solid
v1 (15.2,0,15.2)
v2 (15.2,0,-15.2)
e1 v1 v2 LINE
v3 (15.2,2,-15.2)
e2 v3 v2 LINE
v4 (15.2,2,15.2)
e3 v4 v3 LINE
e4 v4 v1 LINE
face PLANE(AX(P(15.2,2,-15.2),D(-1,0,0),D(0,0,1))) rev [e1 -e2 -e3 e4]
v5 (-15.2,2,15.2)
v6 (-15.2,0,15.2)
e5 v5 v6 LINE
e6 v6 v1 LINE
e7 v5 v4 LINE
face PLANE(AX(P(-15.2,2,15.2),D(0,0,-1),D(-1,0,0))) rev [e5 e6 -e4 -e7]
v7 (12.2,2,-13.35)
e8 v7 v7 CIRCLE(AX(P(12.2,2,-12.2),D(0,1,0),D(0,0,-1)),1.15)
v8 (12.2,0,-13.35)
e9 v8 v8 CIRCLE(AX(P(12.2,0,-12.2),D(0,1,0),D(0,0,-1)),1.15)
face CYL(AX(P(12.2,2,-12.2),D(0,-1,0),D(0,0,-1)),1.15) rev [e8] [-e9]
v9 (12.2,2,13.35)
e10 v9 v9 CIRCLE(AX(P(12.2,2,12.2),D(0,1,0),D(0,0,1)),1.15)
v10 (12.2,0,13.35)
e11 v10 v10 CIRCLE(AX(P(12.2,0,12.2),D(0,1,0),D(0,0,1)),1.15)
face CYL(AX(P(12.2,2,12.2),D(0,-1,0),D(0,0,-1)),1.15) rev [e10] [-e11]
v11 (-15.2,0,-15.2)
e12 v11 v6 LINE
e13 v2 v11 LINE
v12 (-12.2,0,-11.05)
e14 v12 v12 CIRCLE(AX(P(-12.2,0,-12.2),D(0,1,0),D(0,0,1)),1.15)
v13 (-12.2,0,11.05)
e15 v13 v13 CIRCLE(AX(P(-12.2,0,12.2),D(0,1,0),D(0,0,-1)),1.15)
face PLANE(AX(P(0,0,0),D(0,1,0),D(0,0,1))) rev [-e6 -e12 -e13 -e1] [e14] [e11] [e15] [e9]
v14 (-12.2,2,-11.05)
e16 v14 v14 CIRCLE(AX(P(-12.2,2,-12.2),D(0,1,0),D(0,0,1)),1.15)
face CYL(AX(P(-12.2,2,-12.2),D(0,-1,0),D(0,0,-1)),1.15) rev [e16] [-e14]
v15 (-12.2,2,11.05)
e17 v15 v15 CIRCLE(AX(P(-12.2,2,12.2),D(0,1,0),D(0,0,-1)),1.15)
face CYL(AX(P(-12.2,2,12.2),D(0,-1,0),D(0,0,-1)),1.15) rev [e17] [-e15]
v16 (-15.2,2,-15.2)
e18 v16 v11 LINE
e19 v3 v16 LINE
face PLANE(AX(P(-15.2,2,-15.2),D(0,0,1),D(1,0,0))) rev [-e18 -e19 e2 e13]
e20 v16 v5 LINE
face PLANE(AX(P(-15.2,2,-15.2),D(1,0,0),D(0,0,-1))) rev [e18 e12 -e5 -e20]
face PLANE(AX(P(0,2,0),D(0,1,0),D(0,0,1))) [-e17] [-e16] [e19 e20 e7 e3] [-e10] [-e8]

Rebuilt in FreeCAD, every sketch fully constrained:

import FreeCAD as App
import Part
import Sketcher


def add_polygon(sketch, points):
    """Adds a closed chain of lines whose ends are joined by coincident constraints."""
    first, n = sketch.GeometryCount, len(points)
    for a, b in zip(points, points[1:] + points[:1]):
        sketch.addGeometry(Part.LineSegment(App.Vector(*a, 0), App.Vector(*b, 0)), False)
    for i in range(n):
        sketch.addConstraint(Sketcher.Constraint("Coincident", first + i, 2, first + (i + 1) % n, 1))

doc = App.newDocument("Part")
params = doc.addObject("Spreadsheet::Sheet", "Params")
for row, (alias, value) in enumerate([
    ("sketch1_diameter", "2.3 mm"),
    ("sketch1_width", "30.4 mm"),
    ("pad1_length", "2 mm"),
], start=1):
    params.set(f"A{row}", alias)
    params.set(f"B{row}", "=" + value)
    params.setAlias(f"B{row}", alias)

body = doc.addObject("PartDesign::Body", "Body")

# Sketch on XZ plane
sketch1 = body.newObject("Sketcher::SketchObject", "Sketch")
sketch1.AttachmentSupport = (doc.getObject("XZ_Plane"), [""])
sketch1.MapMode = "FlatFace"
add_polygon(sketch1, [(-15.2, -15.2), (-15.2, 15.2), (15.2, 15.2), (15.2, -15.2)])  # lines 0-3
sketch1.addGeometry(Part.Circle(App.Vector(-12.2, 12.2, 0), App.Vector(0, 0, 1), 1.1), False)  # 4
sketch1.addGeometry(Part.Circle(App.Vector(12.2, 12.2, 0), App.Vector(0, 0, 1), 1.1), False)  # 5
sketch1.addGeometry(Part.Circle(App.Vector(-12.2, -12.2, 0), App.Vector(0, 0, 1), 1.1), False)  # 6
sketch1.addGeometry(Part.Circle(App.Vector(12.2, -12.2, 0), App.Vector(0, 0, 1), 1.1), False)  # 7
sketch1.addConstraint([
    Sketcher.Constraint("Vertical", 0),
    Sketcher.Constraint("Horizontal", 1),
    Sketcher.Constraint("Vertical", 2),
    Sketcher.Constraint("Horizontal", 3),
    Sketcher.Constraint("Equal", 4, 5),
    Sketcher.Constraint("Equal", 5, 6),
    Sketcher.Constraint("Equal", 6, 7),
    Sketcher.Constraint("Symmetric", 5, 3, 6, 3, -1, 1),
    Sketcher.Constraint("Symmetric", 4, 3, 7, 3, -1, 1),
    Sketcher.Constraint("Symmetric", 0, 2, 2, 2, -1, 1),
    Sketcher.Constraint("Symmetric", 4, 3, 5, 3, -2),
    Sketcher.Constraint("Equal", 3, 0),
    Sketcher.Constraint("Diameter", 4, 2.3),
    Sketcher.Constraint("DistanceX", 1, 1, 1, 2, 30.4),
    Sketcher.Constraint("DistanceX", 0, 2, 4, 3, 3.0),
    Sketcher.Constraint("DistanceY", 4, 3, 0, 2, 3.0),
])
sketch1.setExpression("Constraints[16]", "Params.sketch1_diameter")
sketch1.setExpression("Constraints[17]", "Params.sketch1_width")
pad1 = body.newObject("PartDesign::Pad", "Pad")
pad1.Profile = sketch1
pad1.setExpression("Length", "Params.pad1_length")
pad1.Reversed = True

doc.recompute()
